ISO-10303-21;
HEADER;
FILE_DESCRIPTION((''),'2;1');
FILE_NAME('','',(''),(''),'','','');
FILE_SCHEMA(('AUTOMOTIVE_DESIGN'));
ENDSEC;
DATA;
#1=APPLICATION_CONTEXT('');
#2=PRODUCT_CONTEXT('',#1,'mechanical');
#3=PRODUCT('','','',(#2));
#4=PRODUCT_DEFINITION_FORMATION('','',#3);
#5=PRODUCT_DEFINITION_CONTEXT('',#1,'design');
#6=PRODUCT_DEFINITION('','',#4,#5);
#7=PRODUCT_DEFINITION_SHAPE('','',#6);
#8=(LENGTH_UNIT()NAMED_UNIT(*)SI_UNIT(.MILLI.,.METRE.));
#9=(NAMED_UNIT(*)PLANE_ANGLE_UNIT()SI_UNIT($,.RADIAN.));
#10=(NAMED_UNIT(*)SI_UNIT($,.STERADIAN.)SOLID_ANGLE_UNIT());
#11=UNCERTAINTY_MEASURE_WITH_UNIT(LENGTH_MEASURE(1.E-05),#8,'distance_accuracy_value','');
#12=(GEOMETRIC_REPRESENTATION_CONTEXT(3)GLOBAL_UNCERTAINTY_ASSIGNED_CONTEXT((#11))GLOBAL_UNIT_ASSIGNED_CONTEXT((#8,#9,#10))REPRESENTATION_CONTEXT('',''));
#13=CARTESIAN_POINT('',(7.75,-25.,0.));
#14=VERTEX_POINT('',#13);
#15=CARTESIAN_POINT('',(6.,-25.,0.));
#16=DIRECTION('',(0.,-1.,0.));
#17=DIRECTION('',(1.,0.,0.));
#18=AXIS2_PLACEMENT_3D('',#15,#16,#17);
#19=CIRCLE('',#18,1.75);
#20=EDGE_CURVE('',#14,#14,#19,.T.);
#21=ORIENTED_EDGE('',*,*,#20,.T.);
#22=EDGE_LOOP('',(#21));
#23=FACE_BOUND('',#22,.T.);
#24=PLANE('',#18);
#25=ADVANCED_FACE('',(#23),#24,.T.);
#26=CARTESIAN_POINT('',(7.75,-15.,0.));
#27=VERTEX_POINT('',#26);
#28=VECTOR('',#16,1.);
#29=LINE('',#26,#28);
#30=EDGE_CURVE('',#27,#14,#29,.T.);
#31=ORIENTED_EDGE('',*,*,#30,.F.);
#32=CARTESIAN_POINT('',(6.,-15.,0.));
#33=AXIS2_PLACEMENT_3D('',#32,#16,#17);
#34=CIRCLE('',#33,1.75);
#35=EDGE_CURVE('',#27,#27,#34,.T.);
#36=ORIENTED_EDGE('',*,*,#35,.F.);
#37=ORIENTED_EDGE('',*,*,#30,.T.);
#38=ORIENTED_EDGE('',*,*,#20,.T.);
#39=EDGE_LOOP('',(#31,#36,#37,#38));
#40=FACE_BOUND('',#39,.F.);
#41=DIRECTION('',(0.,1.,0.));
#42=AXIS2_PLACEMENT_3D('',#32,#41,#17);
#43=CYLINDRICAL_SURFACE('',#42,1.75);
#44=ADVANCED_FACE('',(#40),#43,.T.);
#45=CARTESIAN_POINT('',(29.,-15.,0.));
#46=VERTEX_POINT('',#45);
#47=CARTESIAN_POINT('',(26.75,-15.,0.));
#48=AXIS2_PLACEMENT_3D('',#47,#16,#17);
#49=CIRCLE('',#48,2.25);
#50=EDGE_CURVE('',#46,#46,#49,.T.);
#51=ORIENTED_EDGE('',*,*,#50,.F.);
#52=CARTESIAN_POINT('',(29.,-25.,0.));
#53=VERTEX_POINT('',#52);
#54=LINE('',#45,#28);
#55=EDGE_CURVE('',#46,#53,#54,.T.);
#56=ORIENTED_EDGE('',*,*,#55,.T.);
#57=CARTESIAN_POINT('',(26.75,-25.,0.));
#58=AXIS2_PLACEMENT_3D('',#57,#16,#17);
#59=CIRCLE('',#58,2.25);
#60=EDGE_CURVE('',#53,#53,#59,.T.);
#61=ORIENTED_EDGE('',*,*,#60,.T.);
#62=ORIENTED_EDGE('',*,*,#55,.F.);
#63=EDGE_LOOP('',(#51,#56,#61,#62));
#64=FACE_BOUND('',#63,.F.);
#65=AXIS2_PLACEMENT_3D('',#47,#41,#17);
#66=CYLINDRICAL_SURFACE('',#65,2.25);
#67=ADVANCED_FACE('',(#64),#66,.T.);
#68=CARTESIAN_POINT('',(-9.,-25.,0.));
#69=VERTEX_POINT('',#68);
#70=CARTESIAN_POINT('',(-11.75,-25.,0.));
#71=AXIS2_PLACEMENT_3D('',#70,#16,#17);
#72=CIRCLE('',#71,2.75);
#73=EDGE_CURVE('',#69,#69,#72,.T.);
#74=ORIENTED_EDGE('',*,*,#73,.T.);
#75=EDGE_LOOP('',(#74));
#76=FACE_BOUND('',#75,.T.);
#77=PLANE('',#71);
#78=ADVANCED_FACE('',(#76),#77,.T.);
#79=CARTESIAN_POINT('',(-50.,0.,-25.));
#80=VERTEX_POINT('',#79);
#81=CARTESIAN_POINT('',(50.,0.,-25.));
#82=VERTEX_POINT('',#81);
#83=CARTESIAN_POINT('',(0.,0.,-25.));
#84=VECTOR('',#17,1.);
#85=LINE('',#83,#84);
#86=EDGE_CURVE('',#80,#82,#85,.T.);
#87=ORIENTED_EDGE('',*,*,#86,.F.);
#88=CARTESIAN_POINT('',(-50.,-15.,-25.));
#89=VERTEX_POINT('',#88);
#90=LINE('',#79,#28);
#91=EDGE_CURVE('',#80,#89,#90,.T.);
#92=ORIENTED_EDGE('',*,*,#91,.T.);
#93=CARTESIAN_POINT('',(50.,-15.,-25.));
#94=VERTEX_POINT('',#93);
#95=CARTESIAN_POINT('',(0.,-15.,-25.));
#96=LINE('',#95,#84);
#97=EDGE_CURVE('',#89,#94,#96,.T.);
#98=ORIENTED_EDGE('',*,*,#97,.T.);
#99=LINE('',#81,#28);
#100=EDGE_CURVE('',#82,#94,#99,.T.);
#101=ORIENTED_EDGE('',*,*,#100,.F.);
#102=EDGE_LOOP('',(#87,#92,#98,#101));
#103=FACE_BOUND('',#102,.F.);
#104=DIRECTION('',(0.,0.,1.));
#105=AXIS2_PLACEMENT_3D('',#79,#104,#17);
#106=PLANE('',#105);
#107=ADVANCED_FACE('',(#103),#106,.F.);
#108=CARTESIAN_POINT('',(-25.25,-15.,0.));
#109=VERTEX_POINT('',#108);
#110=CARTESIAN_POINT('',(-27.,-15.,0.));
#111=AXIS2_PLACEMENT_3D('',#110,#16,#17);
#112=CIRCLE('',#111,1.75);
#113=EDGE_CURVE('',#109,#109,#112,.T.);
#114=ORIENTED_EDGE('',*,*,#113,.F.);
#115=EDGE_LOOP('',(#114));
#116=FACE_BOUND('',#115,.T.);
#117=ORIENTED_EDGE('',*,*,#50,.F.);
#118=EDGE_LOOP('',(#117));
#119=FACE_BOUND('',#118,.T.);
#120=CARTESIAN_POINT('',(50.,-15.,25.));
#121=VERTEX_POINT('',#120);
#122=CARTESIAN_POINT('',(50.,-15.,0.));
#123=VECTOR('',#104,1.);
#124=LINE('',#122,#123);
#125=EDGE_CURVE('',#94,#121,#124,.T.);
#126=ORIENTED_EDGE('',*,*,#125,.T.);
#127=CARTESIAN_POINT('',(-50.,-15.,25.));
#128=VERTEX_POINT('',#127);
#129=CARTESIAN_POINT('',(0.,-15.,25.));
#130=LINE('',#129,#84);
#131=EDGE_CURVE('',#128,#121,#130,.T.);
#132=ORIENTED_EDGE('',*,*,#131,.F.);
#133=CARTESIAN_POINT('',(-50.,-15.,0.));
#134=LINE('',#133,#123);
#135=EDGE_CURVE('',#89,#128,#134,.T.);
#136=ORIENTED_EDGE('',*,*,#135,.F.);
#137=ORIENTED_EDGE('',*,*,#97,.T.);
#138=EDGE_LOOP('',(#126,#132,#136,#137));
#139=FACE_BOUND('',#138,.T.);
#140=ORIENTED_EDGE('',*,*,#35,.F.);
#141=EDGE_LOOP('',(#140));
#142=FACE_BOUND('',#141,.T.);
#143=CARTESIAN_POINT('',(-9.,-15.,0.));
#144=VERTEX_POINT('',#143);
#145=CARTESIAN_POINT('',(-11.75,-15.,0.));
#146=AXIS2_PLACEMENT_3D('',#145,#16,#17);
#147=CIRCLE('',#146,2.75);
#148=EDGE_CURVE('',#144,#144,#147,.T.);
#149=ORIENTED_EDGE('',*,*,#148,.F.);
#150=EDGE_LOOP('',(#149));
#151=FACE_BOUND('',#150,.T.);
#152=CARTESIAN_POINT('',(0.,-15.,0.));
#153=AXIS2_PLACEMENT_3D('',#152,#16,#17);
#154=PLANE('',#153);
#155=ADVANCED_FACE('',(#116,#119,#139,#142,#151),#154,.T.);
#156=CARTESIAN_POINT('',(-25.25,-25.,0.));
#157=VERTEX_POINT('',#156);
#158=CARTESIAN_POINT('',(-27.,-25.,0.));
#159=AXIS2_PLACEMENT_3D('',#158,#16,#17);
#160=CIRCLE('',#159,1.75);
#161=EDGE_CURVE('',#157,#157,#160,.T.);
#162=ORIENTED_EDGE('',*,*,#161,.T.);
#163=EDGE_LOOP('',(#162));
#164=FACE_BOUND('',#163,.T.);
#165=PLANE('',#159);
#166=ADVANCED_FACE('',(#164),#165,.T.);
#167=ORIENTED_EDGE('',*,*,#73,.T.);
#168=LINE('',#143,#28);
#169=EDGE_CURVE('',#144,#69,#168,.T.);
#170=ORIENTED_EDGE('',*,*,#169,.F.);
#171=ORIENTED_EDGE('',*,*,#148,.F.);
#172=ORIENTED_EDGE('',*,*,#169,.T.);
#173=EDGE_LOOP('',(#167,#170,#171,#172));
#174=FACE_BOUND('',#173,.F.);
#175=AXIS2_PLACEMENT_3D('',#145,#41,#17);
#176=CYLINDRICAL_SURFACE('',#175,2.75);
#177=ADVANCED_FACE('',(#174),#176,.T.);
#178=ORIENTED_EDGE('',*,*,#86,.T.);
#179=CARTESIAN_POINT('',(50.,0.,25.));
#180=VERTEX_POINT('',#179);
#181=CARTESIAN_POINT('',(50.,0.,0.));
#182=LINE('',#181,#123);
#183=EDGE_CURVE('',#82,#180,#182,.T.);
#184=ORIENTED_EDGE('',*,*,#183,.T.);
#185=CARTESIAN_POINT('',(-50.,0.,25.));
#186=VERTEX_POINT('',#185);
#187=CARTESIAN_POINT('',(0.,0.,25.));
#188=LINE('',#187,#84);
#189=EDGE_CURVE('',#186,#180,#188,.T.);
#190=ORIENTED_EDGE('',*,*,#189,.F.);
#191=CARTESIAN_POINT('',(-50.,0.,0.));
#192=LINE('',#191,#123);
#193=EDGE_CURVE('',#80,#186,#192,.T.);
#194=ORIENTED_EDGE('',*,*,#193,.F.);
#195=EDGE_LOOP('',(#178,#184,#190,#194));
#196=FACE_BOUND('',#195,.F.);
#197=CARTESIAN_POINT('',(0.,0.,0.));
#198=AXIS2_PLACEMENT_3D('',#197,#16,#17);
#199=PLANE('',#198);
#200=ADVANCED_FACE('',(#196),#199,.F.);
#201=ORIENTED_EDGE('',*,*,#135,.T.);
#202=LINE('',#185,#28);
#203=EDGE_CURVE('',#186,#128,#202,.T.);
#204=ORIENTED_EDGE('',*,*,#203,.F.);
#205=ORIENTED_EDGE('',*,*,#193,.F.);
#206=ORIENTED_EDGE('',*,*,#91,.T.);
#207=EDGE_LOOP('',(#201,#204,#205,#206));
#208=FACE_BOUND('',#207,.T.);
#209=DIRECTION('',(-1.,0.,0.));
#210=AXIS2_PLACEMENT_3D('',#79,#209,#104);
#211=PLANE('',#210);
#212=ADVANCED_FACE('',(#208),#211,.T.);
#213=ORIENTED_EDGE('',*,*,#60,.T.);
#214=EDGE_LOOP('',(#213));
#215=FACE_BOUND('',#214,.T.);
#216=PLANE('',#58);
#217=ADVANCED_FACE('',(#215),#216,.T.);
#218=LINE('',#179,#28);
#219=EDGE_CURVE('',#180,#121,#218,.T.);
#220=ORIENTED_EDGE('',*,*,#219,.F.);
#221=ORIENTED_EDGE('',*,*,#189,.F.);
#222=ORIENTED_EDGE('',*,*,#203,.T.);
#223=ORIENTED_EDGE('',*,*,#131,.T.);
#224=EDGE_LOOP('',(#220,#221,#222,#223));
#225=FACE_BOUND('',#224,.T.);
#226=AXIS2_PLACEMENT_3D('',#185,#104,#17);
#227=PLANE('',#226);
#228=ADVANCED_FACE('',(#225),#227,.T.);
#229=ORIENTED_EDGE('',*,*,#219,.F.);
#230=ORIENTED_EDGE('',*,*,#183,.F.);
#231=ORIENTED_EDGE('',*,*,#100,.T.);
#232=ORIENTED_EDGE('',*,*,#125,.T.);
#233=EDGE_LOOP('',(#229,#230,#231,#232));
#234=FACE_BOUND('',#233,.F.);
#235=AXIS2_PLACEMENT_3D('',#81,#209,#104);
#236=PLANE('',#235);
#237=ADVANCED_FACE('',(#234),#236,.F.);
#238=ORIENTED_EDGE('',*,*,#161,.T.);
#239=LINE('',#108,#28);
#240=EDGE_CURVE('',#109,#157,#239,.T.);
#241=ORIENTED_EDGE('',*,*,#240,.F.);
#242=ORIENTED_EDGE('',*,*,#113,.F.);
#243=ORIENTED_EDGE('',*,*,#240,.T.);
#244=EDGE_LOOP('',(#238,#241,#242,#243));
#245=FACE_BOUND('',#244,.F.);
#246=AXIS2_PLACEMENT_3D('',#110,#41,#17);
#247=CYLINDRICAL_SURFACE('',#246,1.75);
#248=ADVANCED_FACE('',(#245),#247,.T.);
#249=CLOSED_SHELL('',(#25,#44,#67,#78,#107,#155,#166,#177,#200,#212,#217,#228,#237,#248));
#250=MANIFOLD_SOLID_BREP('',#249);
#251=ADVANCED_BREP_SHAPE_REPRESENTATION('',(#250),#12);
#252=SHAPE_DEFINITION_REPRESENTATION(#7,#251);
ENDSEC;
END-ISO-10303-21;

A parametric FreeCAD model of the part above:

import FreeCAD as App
import Part
import Sketcher

V = App.Vector
Q = App.Units.Quantity

doc = App.newDocument("Part")
body = doc.addObject("PartDesign::Body", "Body")

# Sketch on XZ plane
sketch1 = body.newObject("Sketcher::SketchObject", "Sketch")
sketch1.AttachmentSupport = (doc.getObject("XZ_Plane"), [""])
sketch1.MapMode = "FlatFace"
sketch1.addGeometry([
    Part.LineSegment(V(-50, 25, 0), V(-50, -25, 0)),
    Part.LineSegment(V(-50, -25, 0), V(50, -25, 0)),
    Part.LineSegment(V(50, -25, 0), V(50, 25, 0)),
    Part.LineSegment(V(50, 25, 0), V(-50, 25, 0)),
], False)
sketch1.addConstraint([
    Sketcher.Constraint("Coincident", 0, 2, 1, 1),
    Sketcher.Constraint("Coincident", 1, 2, 2, 1),
    Sketcher.Constraint("Coincident", 2, 2, 3, 1),
    Sketcher.Constraint("Coincident", 3, 2, 0, 1),
    Sketcher.Constraint("Vertical", 0),
    Sketcher.Constraint("Horizontal", 1),
    Sketcher.Constraint("Vertical", 2),
    Sketcher.Constraint("Horizontal", 3),
    Sketcher.Constraint("Symmetric", 0, 2, 2, 2, -1, 1),
    Sketcher.Constraint("DistanceX", 1, 1, 1, 2, Q("100 mm")),
    Sketcher.Constraint("DistanceY", 0, 2, 0, 1, Q("50 mm")),
])
pad1 = body.newObject("PartDesign::Pad", "Pad")
pad1.Profile = sketch1
pad1.Length = 15

# Sketch on XZ plane
sketch2 = body.newObject("Sketcher::SketchObject", "Sketch001")
sketch2.AttachmentSupport = (doc.getObject("XZ_Plane"), [""])
sketch2.MapMode = "FlatFace"
sketch2.AttachmentOffset = App.Placement(V(0, 0, 15), App.Rotation())
sketch2.addGeometry(Part.Circle(V(-27, 0, 0), V(0, 0, 1), 1.8), False)
sketch2.addConstraint([
    Sketcher.Constraint("PointOnObject", 0, 3, -1),
    Sketcher.Constraint("Diameter", 0, Q("3.5 mm")),
    Sketcher.Constraint("DistanceX", 0, 3, -1, 1, Q("27 mm")),
])
pad2 = body.newObject("PartDesign::Pad", "Pad001")
pad2.Profile = sketch2
pad2.Length = 10

# Sketch on XZ plane
sketch3 = body.newObject("Sketcher::SketchObject", "Sketch002")
sketch3.AttachmentSupport = (doc.getObject("XZ_Plane"), [""])
sketch3.MapMode = "FlatFace"
sketch3.AttachmentOffset = App.Placement(V(0, 0, 15), App.Rotation())
sketch3.addGeometry(Part.Circle(V(-11.8, 0, 0), V(0, 0, 1), 2.8), False)
sketch3.addConstraint([
    Sketcher.Constraint("PointOnObject", 0, 3, -1),
    Sketcher.Constraint("Diameter", 0, Q("5.5 mm")),
    Sketcher.Constraint("DistanceX", 0, 3, -1, 1, Q("11.75 mm")),
])
pad3 = body.newObject("PartDesign::Pad", "Pad002")
pad3.Profile = sketch3
pad3.Length = 10

# Sketch on XZ plane
sketch4 = body.newObject("Sketcher::SketchObject", "Sketch003")
sketch4.AttachmentSupport = (doc.getObject("XZ_Plane"), [""])
sketch4.MapMode = "FlatFace"
sketch4.AttachmentOffset = App.Placement(V(0, 0, 15), App.Rotation())
sketch4.addGeometry(Part.Circle(V(6, 0, 0), V(0, 0, 1), 1.8), False)
sketch4.addConstraint([
    Sketcher.Constraint("PointOnObject", 0, 3, -1),
    Sketcher.Constraint("Diameter", 0, Q("3.5 mm")),
    Sketcher.Constraint("DistanceX", -1, 1, 0, 3, Q("6 mm")),
])
pad4 = body.newObject("PartDesign::Pad", "Pad003")
pad4.Profile = sketch4
pad4.Length = 10

# Sketch on XZ plane
sketch5 = body.newObject("Sketcher::SketchObject", "Sketch004")
sketch5.AttachmentSupport = (doc.getObject("XZ_Plane"), [""])
sketch5.MapMode = "FlatFace"
sketch5.AttachmentOffset = App.Placement(V(0, 0, 15), App.Rotation())
sketch5.addGeometry(Part.Circle(V(26.8, 0, 0), V(0, 0, 1), 2.2), False)
sketch5.addConstraint([
    Sketcher.Constraint("PointOnObject", 0, 3, -1),
    Sketcher.Constraint("Diameter", 0, Q("4.5 mm")),
    Sketcher.Constraint("DistanceX", -1, 1, 0, 3, Q("26.75 mm")),
])
pad5 = body.newObject("PartDesign::Pad", "Pad004")
pad5.Profile = sketch5
pad5.Length = 10

doc.recompute()
